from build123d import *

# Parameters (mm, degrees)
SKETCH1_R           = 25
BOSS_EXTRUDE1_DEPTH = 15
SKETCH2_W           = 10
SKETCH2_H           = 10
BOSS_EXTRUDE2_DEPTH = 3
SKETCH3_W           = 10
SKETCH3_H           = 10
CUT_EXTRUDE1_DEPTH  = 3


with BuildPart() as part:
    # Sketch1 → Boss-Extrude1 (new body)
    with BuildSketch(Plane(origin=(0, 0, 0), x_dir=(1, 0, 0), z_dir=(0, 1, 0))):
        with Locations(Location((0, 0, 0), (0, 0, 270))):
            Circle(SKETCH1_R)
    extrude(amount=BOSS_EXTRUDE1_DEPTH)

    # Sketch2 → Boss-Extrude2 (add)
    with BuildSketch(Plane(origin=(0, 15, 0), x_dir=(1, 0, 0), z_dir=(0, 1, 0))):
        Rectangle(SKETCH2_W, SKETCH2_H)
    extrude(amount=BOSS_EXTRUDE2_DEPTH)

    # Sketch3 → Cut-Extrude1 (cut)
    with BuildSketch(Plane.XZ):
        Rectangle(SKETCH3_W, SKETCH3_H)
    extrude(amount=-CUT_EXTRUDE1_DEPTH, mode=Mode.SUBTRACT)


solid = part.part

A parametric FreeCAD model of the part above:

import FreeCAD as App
import Part
import Sketcher

V = App.Vector
Q = App.Units.Quantity


def add_polygon(sketch, points):
    """Adds a closed chain of lines whose ends are joined by coincident constraints."""
    first, n = sketch.GeometryCount, len(points)
    for a, b in zip(points, points[1:] + points[:1]):
        sketch.addGeometry(Part.LineSegment(App.Vector(*a, 0), App.Vector(*b, 0)), False)
    for i in range(n):
        sketch.addConstraint(Sketcher.Constraint("Coincident", first + i, 2, first + (i + 1) % n, 1))

doc = App.newDocument("Part")
body = doc.addObject("PartDesign::Body", "Body")

# Sketch on XZ plane
sketch1 = doc.addObject("Sketcher::SketchObject", "Sketch")
body.addObject(sketch1)
sketch1.AttachmentSupport = (doc.XZ_Plane, [""])
sketch1.MapMode = "FlatFace"
sketch1.addGeometry(Part.Circle(V(0, 0, 0), V(0, 0, 1), 25), False)
sketch1.addConstraint([
    Sketcher.Constraint("Coincident", 0, 3, -1, 1),
    Sketcher.Constraint("Diameter", 0, Q("50 mm")),
])
pad1 = doc.addObject("PartDesign::Pad", "Pad")
body.addObject(pad1)
pad1.Profile = sketch1
pad1.Length = 15
pad1.Reversed = True

# Sketch on XZ plane
sketch2 = doc.addObject("Sketcher::SketchObject", "Sketch001")
body.addObject(sketch2)
sketch2.AttachmentSupport = (doc.XZ_Plane, [""])
sketch2.MapMode = "FlatFace"
sketch2.AttachmentOffset = App.Placement(V(0, 0, -15), App.Rotation())
add_polygon(sketch2, [(-5, -5), (-5, 5), (5, 5), (5, -5)])  # lines 0-3
sketch2.addConstraint([
    Sketcher.Constraint("Vertical", 0),
    Sketcher.Constraint("Horizontal", 1),
    Sketcher.Constraint("Vertical", 2),
    Sketcher.Constraint("Horizontal", 3),
    Sketcher.Constraint("Symmetric", 0, 2, 2, 2, -1, 1),
    Sketcher.Constraint("Equal", 3, 0),
    Sketcher.Constraint("DistanceX", 1, 1, 1, 2, Q("10 mm")),
])
pad2 = doc.addObject("PartDesign::Pad", "Pad001")
body.addObject(pad2)
pad2.Profile = sketch2
pad2.Length = 3
pad2.Reversed = True

# Sketch on XZ plane
sketch3 = doc.addObject("Sketcher::SketchObject", "Sketch002")
body.addObject(sketch3)
sketch3.AttachmentSupport = (doc.XZ_Plane, [""])
sketch3.MapMode = "FlatFace"
add_polygon(sketch3, [(-5, 5), (-5, -5), (5, -5), (5, 5)])  # lines 0-3
sketch3.addConstraint([
    Sketcher.Constraint("Vertical", 0),
    Sketcher.Constraint("Horizontal", 1),
    Sketcher.Constraint("Vertical", 2),
    Sketcher.Constraint("Horizontal", 3),
    Sketcher.Constraint("Symmetric", 0, 2, 2, 2, -1, 1),
    Sketcher.Constraint("Equal", 3, 0),
    Sketcher.Constraint("DistanceX", 1, 1, 1, 2, Q("10 mm")),
])
pocket1 = doc.addObject("PartDesign::Pocket", "Pocket")
body.addObject(pocket1)
pocket1.Profile = sketch3
pocket1.Length = 3

doc.recompute()
